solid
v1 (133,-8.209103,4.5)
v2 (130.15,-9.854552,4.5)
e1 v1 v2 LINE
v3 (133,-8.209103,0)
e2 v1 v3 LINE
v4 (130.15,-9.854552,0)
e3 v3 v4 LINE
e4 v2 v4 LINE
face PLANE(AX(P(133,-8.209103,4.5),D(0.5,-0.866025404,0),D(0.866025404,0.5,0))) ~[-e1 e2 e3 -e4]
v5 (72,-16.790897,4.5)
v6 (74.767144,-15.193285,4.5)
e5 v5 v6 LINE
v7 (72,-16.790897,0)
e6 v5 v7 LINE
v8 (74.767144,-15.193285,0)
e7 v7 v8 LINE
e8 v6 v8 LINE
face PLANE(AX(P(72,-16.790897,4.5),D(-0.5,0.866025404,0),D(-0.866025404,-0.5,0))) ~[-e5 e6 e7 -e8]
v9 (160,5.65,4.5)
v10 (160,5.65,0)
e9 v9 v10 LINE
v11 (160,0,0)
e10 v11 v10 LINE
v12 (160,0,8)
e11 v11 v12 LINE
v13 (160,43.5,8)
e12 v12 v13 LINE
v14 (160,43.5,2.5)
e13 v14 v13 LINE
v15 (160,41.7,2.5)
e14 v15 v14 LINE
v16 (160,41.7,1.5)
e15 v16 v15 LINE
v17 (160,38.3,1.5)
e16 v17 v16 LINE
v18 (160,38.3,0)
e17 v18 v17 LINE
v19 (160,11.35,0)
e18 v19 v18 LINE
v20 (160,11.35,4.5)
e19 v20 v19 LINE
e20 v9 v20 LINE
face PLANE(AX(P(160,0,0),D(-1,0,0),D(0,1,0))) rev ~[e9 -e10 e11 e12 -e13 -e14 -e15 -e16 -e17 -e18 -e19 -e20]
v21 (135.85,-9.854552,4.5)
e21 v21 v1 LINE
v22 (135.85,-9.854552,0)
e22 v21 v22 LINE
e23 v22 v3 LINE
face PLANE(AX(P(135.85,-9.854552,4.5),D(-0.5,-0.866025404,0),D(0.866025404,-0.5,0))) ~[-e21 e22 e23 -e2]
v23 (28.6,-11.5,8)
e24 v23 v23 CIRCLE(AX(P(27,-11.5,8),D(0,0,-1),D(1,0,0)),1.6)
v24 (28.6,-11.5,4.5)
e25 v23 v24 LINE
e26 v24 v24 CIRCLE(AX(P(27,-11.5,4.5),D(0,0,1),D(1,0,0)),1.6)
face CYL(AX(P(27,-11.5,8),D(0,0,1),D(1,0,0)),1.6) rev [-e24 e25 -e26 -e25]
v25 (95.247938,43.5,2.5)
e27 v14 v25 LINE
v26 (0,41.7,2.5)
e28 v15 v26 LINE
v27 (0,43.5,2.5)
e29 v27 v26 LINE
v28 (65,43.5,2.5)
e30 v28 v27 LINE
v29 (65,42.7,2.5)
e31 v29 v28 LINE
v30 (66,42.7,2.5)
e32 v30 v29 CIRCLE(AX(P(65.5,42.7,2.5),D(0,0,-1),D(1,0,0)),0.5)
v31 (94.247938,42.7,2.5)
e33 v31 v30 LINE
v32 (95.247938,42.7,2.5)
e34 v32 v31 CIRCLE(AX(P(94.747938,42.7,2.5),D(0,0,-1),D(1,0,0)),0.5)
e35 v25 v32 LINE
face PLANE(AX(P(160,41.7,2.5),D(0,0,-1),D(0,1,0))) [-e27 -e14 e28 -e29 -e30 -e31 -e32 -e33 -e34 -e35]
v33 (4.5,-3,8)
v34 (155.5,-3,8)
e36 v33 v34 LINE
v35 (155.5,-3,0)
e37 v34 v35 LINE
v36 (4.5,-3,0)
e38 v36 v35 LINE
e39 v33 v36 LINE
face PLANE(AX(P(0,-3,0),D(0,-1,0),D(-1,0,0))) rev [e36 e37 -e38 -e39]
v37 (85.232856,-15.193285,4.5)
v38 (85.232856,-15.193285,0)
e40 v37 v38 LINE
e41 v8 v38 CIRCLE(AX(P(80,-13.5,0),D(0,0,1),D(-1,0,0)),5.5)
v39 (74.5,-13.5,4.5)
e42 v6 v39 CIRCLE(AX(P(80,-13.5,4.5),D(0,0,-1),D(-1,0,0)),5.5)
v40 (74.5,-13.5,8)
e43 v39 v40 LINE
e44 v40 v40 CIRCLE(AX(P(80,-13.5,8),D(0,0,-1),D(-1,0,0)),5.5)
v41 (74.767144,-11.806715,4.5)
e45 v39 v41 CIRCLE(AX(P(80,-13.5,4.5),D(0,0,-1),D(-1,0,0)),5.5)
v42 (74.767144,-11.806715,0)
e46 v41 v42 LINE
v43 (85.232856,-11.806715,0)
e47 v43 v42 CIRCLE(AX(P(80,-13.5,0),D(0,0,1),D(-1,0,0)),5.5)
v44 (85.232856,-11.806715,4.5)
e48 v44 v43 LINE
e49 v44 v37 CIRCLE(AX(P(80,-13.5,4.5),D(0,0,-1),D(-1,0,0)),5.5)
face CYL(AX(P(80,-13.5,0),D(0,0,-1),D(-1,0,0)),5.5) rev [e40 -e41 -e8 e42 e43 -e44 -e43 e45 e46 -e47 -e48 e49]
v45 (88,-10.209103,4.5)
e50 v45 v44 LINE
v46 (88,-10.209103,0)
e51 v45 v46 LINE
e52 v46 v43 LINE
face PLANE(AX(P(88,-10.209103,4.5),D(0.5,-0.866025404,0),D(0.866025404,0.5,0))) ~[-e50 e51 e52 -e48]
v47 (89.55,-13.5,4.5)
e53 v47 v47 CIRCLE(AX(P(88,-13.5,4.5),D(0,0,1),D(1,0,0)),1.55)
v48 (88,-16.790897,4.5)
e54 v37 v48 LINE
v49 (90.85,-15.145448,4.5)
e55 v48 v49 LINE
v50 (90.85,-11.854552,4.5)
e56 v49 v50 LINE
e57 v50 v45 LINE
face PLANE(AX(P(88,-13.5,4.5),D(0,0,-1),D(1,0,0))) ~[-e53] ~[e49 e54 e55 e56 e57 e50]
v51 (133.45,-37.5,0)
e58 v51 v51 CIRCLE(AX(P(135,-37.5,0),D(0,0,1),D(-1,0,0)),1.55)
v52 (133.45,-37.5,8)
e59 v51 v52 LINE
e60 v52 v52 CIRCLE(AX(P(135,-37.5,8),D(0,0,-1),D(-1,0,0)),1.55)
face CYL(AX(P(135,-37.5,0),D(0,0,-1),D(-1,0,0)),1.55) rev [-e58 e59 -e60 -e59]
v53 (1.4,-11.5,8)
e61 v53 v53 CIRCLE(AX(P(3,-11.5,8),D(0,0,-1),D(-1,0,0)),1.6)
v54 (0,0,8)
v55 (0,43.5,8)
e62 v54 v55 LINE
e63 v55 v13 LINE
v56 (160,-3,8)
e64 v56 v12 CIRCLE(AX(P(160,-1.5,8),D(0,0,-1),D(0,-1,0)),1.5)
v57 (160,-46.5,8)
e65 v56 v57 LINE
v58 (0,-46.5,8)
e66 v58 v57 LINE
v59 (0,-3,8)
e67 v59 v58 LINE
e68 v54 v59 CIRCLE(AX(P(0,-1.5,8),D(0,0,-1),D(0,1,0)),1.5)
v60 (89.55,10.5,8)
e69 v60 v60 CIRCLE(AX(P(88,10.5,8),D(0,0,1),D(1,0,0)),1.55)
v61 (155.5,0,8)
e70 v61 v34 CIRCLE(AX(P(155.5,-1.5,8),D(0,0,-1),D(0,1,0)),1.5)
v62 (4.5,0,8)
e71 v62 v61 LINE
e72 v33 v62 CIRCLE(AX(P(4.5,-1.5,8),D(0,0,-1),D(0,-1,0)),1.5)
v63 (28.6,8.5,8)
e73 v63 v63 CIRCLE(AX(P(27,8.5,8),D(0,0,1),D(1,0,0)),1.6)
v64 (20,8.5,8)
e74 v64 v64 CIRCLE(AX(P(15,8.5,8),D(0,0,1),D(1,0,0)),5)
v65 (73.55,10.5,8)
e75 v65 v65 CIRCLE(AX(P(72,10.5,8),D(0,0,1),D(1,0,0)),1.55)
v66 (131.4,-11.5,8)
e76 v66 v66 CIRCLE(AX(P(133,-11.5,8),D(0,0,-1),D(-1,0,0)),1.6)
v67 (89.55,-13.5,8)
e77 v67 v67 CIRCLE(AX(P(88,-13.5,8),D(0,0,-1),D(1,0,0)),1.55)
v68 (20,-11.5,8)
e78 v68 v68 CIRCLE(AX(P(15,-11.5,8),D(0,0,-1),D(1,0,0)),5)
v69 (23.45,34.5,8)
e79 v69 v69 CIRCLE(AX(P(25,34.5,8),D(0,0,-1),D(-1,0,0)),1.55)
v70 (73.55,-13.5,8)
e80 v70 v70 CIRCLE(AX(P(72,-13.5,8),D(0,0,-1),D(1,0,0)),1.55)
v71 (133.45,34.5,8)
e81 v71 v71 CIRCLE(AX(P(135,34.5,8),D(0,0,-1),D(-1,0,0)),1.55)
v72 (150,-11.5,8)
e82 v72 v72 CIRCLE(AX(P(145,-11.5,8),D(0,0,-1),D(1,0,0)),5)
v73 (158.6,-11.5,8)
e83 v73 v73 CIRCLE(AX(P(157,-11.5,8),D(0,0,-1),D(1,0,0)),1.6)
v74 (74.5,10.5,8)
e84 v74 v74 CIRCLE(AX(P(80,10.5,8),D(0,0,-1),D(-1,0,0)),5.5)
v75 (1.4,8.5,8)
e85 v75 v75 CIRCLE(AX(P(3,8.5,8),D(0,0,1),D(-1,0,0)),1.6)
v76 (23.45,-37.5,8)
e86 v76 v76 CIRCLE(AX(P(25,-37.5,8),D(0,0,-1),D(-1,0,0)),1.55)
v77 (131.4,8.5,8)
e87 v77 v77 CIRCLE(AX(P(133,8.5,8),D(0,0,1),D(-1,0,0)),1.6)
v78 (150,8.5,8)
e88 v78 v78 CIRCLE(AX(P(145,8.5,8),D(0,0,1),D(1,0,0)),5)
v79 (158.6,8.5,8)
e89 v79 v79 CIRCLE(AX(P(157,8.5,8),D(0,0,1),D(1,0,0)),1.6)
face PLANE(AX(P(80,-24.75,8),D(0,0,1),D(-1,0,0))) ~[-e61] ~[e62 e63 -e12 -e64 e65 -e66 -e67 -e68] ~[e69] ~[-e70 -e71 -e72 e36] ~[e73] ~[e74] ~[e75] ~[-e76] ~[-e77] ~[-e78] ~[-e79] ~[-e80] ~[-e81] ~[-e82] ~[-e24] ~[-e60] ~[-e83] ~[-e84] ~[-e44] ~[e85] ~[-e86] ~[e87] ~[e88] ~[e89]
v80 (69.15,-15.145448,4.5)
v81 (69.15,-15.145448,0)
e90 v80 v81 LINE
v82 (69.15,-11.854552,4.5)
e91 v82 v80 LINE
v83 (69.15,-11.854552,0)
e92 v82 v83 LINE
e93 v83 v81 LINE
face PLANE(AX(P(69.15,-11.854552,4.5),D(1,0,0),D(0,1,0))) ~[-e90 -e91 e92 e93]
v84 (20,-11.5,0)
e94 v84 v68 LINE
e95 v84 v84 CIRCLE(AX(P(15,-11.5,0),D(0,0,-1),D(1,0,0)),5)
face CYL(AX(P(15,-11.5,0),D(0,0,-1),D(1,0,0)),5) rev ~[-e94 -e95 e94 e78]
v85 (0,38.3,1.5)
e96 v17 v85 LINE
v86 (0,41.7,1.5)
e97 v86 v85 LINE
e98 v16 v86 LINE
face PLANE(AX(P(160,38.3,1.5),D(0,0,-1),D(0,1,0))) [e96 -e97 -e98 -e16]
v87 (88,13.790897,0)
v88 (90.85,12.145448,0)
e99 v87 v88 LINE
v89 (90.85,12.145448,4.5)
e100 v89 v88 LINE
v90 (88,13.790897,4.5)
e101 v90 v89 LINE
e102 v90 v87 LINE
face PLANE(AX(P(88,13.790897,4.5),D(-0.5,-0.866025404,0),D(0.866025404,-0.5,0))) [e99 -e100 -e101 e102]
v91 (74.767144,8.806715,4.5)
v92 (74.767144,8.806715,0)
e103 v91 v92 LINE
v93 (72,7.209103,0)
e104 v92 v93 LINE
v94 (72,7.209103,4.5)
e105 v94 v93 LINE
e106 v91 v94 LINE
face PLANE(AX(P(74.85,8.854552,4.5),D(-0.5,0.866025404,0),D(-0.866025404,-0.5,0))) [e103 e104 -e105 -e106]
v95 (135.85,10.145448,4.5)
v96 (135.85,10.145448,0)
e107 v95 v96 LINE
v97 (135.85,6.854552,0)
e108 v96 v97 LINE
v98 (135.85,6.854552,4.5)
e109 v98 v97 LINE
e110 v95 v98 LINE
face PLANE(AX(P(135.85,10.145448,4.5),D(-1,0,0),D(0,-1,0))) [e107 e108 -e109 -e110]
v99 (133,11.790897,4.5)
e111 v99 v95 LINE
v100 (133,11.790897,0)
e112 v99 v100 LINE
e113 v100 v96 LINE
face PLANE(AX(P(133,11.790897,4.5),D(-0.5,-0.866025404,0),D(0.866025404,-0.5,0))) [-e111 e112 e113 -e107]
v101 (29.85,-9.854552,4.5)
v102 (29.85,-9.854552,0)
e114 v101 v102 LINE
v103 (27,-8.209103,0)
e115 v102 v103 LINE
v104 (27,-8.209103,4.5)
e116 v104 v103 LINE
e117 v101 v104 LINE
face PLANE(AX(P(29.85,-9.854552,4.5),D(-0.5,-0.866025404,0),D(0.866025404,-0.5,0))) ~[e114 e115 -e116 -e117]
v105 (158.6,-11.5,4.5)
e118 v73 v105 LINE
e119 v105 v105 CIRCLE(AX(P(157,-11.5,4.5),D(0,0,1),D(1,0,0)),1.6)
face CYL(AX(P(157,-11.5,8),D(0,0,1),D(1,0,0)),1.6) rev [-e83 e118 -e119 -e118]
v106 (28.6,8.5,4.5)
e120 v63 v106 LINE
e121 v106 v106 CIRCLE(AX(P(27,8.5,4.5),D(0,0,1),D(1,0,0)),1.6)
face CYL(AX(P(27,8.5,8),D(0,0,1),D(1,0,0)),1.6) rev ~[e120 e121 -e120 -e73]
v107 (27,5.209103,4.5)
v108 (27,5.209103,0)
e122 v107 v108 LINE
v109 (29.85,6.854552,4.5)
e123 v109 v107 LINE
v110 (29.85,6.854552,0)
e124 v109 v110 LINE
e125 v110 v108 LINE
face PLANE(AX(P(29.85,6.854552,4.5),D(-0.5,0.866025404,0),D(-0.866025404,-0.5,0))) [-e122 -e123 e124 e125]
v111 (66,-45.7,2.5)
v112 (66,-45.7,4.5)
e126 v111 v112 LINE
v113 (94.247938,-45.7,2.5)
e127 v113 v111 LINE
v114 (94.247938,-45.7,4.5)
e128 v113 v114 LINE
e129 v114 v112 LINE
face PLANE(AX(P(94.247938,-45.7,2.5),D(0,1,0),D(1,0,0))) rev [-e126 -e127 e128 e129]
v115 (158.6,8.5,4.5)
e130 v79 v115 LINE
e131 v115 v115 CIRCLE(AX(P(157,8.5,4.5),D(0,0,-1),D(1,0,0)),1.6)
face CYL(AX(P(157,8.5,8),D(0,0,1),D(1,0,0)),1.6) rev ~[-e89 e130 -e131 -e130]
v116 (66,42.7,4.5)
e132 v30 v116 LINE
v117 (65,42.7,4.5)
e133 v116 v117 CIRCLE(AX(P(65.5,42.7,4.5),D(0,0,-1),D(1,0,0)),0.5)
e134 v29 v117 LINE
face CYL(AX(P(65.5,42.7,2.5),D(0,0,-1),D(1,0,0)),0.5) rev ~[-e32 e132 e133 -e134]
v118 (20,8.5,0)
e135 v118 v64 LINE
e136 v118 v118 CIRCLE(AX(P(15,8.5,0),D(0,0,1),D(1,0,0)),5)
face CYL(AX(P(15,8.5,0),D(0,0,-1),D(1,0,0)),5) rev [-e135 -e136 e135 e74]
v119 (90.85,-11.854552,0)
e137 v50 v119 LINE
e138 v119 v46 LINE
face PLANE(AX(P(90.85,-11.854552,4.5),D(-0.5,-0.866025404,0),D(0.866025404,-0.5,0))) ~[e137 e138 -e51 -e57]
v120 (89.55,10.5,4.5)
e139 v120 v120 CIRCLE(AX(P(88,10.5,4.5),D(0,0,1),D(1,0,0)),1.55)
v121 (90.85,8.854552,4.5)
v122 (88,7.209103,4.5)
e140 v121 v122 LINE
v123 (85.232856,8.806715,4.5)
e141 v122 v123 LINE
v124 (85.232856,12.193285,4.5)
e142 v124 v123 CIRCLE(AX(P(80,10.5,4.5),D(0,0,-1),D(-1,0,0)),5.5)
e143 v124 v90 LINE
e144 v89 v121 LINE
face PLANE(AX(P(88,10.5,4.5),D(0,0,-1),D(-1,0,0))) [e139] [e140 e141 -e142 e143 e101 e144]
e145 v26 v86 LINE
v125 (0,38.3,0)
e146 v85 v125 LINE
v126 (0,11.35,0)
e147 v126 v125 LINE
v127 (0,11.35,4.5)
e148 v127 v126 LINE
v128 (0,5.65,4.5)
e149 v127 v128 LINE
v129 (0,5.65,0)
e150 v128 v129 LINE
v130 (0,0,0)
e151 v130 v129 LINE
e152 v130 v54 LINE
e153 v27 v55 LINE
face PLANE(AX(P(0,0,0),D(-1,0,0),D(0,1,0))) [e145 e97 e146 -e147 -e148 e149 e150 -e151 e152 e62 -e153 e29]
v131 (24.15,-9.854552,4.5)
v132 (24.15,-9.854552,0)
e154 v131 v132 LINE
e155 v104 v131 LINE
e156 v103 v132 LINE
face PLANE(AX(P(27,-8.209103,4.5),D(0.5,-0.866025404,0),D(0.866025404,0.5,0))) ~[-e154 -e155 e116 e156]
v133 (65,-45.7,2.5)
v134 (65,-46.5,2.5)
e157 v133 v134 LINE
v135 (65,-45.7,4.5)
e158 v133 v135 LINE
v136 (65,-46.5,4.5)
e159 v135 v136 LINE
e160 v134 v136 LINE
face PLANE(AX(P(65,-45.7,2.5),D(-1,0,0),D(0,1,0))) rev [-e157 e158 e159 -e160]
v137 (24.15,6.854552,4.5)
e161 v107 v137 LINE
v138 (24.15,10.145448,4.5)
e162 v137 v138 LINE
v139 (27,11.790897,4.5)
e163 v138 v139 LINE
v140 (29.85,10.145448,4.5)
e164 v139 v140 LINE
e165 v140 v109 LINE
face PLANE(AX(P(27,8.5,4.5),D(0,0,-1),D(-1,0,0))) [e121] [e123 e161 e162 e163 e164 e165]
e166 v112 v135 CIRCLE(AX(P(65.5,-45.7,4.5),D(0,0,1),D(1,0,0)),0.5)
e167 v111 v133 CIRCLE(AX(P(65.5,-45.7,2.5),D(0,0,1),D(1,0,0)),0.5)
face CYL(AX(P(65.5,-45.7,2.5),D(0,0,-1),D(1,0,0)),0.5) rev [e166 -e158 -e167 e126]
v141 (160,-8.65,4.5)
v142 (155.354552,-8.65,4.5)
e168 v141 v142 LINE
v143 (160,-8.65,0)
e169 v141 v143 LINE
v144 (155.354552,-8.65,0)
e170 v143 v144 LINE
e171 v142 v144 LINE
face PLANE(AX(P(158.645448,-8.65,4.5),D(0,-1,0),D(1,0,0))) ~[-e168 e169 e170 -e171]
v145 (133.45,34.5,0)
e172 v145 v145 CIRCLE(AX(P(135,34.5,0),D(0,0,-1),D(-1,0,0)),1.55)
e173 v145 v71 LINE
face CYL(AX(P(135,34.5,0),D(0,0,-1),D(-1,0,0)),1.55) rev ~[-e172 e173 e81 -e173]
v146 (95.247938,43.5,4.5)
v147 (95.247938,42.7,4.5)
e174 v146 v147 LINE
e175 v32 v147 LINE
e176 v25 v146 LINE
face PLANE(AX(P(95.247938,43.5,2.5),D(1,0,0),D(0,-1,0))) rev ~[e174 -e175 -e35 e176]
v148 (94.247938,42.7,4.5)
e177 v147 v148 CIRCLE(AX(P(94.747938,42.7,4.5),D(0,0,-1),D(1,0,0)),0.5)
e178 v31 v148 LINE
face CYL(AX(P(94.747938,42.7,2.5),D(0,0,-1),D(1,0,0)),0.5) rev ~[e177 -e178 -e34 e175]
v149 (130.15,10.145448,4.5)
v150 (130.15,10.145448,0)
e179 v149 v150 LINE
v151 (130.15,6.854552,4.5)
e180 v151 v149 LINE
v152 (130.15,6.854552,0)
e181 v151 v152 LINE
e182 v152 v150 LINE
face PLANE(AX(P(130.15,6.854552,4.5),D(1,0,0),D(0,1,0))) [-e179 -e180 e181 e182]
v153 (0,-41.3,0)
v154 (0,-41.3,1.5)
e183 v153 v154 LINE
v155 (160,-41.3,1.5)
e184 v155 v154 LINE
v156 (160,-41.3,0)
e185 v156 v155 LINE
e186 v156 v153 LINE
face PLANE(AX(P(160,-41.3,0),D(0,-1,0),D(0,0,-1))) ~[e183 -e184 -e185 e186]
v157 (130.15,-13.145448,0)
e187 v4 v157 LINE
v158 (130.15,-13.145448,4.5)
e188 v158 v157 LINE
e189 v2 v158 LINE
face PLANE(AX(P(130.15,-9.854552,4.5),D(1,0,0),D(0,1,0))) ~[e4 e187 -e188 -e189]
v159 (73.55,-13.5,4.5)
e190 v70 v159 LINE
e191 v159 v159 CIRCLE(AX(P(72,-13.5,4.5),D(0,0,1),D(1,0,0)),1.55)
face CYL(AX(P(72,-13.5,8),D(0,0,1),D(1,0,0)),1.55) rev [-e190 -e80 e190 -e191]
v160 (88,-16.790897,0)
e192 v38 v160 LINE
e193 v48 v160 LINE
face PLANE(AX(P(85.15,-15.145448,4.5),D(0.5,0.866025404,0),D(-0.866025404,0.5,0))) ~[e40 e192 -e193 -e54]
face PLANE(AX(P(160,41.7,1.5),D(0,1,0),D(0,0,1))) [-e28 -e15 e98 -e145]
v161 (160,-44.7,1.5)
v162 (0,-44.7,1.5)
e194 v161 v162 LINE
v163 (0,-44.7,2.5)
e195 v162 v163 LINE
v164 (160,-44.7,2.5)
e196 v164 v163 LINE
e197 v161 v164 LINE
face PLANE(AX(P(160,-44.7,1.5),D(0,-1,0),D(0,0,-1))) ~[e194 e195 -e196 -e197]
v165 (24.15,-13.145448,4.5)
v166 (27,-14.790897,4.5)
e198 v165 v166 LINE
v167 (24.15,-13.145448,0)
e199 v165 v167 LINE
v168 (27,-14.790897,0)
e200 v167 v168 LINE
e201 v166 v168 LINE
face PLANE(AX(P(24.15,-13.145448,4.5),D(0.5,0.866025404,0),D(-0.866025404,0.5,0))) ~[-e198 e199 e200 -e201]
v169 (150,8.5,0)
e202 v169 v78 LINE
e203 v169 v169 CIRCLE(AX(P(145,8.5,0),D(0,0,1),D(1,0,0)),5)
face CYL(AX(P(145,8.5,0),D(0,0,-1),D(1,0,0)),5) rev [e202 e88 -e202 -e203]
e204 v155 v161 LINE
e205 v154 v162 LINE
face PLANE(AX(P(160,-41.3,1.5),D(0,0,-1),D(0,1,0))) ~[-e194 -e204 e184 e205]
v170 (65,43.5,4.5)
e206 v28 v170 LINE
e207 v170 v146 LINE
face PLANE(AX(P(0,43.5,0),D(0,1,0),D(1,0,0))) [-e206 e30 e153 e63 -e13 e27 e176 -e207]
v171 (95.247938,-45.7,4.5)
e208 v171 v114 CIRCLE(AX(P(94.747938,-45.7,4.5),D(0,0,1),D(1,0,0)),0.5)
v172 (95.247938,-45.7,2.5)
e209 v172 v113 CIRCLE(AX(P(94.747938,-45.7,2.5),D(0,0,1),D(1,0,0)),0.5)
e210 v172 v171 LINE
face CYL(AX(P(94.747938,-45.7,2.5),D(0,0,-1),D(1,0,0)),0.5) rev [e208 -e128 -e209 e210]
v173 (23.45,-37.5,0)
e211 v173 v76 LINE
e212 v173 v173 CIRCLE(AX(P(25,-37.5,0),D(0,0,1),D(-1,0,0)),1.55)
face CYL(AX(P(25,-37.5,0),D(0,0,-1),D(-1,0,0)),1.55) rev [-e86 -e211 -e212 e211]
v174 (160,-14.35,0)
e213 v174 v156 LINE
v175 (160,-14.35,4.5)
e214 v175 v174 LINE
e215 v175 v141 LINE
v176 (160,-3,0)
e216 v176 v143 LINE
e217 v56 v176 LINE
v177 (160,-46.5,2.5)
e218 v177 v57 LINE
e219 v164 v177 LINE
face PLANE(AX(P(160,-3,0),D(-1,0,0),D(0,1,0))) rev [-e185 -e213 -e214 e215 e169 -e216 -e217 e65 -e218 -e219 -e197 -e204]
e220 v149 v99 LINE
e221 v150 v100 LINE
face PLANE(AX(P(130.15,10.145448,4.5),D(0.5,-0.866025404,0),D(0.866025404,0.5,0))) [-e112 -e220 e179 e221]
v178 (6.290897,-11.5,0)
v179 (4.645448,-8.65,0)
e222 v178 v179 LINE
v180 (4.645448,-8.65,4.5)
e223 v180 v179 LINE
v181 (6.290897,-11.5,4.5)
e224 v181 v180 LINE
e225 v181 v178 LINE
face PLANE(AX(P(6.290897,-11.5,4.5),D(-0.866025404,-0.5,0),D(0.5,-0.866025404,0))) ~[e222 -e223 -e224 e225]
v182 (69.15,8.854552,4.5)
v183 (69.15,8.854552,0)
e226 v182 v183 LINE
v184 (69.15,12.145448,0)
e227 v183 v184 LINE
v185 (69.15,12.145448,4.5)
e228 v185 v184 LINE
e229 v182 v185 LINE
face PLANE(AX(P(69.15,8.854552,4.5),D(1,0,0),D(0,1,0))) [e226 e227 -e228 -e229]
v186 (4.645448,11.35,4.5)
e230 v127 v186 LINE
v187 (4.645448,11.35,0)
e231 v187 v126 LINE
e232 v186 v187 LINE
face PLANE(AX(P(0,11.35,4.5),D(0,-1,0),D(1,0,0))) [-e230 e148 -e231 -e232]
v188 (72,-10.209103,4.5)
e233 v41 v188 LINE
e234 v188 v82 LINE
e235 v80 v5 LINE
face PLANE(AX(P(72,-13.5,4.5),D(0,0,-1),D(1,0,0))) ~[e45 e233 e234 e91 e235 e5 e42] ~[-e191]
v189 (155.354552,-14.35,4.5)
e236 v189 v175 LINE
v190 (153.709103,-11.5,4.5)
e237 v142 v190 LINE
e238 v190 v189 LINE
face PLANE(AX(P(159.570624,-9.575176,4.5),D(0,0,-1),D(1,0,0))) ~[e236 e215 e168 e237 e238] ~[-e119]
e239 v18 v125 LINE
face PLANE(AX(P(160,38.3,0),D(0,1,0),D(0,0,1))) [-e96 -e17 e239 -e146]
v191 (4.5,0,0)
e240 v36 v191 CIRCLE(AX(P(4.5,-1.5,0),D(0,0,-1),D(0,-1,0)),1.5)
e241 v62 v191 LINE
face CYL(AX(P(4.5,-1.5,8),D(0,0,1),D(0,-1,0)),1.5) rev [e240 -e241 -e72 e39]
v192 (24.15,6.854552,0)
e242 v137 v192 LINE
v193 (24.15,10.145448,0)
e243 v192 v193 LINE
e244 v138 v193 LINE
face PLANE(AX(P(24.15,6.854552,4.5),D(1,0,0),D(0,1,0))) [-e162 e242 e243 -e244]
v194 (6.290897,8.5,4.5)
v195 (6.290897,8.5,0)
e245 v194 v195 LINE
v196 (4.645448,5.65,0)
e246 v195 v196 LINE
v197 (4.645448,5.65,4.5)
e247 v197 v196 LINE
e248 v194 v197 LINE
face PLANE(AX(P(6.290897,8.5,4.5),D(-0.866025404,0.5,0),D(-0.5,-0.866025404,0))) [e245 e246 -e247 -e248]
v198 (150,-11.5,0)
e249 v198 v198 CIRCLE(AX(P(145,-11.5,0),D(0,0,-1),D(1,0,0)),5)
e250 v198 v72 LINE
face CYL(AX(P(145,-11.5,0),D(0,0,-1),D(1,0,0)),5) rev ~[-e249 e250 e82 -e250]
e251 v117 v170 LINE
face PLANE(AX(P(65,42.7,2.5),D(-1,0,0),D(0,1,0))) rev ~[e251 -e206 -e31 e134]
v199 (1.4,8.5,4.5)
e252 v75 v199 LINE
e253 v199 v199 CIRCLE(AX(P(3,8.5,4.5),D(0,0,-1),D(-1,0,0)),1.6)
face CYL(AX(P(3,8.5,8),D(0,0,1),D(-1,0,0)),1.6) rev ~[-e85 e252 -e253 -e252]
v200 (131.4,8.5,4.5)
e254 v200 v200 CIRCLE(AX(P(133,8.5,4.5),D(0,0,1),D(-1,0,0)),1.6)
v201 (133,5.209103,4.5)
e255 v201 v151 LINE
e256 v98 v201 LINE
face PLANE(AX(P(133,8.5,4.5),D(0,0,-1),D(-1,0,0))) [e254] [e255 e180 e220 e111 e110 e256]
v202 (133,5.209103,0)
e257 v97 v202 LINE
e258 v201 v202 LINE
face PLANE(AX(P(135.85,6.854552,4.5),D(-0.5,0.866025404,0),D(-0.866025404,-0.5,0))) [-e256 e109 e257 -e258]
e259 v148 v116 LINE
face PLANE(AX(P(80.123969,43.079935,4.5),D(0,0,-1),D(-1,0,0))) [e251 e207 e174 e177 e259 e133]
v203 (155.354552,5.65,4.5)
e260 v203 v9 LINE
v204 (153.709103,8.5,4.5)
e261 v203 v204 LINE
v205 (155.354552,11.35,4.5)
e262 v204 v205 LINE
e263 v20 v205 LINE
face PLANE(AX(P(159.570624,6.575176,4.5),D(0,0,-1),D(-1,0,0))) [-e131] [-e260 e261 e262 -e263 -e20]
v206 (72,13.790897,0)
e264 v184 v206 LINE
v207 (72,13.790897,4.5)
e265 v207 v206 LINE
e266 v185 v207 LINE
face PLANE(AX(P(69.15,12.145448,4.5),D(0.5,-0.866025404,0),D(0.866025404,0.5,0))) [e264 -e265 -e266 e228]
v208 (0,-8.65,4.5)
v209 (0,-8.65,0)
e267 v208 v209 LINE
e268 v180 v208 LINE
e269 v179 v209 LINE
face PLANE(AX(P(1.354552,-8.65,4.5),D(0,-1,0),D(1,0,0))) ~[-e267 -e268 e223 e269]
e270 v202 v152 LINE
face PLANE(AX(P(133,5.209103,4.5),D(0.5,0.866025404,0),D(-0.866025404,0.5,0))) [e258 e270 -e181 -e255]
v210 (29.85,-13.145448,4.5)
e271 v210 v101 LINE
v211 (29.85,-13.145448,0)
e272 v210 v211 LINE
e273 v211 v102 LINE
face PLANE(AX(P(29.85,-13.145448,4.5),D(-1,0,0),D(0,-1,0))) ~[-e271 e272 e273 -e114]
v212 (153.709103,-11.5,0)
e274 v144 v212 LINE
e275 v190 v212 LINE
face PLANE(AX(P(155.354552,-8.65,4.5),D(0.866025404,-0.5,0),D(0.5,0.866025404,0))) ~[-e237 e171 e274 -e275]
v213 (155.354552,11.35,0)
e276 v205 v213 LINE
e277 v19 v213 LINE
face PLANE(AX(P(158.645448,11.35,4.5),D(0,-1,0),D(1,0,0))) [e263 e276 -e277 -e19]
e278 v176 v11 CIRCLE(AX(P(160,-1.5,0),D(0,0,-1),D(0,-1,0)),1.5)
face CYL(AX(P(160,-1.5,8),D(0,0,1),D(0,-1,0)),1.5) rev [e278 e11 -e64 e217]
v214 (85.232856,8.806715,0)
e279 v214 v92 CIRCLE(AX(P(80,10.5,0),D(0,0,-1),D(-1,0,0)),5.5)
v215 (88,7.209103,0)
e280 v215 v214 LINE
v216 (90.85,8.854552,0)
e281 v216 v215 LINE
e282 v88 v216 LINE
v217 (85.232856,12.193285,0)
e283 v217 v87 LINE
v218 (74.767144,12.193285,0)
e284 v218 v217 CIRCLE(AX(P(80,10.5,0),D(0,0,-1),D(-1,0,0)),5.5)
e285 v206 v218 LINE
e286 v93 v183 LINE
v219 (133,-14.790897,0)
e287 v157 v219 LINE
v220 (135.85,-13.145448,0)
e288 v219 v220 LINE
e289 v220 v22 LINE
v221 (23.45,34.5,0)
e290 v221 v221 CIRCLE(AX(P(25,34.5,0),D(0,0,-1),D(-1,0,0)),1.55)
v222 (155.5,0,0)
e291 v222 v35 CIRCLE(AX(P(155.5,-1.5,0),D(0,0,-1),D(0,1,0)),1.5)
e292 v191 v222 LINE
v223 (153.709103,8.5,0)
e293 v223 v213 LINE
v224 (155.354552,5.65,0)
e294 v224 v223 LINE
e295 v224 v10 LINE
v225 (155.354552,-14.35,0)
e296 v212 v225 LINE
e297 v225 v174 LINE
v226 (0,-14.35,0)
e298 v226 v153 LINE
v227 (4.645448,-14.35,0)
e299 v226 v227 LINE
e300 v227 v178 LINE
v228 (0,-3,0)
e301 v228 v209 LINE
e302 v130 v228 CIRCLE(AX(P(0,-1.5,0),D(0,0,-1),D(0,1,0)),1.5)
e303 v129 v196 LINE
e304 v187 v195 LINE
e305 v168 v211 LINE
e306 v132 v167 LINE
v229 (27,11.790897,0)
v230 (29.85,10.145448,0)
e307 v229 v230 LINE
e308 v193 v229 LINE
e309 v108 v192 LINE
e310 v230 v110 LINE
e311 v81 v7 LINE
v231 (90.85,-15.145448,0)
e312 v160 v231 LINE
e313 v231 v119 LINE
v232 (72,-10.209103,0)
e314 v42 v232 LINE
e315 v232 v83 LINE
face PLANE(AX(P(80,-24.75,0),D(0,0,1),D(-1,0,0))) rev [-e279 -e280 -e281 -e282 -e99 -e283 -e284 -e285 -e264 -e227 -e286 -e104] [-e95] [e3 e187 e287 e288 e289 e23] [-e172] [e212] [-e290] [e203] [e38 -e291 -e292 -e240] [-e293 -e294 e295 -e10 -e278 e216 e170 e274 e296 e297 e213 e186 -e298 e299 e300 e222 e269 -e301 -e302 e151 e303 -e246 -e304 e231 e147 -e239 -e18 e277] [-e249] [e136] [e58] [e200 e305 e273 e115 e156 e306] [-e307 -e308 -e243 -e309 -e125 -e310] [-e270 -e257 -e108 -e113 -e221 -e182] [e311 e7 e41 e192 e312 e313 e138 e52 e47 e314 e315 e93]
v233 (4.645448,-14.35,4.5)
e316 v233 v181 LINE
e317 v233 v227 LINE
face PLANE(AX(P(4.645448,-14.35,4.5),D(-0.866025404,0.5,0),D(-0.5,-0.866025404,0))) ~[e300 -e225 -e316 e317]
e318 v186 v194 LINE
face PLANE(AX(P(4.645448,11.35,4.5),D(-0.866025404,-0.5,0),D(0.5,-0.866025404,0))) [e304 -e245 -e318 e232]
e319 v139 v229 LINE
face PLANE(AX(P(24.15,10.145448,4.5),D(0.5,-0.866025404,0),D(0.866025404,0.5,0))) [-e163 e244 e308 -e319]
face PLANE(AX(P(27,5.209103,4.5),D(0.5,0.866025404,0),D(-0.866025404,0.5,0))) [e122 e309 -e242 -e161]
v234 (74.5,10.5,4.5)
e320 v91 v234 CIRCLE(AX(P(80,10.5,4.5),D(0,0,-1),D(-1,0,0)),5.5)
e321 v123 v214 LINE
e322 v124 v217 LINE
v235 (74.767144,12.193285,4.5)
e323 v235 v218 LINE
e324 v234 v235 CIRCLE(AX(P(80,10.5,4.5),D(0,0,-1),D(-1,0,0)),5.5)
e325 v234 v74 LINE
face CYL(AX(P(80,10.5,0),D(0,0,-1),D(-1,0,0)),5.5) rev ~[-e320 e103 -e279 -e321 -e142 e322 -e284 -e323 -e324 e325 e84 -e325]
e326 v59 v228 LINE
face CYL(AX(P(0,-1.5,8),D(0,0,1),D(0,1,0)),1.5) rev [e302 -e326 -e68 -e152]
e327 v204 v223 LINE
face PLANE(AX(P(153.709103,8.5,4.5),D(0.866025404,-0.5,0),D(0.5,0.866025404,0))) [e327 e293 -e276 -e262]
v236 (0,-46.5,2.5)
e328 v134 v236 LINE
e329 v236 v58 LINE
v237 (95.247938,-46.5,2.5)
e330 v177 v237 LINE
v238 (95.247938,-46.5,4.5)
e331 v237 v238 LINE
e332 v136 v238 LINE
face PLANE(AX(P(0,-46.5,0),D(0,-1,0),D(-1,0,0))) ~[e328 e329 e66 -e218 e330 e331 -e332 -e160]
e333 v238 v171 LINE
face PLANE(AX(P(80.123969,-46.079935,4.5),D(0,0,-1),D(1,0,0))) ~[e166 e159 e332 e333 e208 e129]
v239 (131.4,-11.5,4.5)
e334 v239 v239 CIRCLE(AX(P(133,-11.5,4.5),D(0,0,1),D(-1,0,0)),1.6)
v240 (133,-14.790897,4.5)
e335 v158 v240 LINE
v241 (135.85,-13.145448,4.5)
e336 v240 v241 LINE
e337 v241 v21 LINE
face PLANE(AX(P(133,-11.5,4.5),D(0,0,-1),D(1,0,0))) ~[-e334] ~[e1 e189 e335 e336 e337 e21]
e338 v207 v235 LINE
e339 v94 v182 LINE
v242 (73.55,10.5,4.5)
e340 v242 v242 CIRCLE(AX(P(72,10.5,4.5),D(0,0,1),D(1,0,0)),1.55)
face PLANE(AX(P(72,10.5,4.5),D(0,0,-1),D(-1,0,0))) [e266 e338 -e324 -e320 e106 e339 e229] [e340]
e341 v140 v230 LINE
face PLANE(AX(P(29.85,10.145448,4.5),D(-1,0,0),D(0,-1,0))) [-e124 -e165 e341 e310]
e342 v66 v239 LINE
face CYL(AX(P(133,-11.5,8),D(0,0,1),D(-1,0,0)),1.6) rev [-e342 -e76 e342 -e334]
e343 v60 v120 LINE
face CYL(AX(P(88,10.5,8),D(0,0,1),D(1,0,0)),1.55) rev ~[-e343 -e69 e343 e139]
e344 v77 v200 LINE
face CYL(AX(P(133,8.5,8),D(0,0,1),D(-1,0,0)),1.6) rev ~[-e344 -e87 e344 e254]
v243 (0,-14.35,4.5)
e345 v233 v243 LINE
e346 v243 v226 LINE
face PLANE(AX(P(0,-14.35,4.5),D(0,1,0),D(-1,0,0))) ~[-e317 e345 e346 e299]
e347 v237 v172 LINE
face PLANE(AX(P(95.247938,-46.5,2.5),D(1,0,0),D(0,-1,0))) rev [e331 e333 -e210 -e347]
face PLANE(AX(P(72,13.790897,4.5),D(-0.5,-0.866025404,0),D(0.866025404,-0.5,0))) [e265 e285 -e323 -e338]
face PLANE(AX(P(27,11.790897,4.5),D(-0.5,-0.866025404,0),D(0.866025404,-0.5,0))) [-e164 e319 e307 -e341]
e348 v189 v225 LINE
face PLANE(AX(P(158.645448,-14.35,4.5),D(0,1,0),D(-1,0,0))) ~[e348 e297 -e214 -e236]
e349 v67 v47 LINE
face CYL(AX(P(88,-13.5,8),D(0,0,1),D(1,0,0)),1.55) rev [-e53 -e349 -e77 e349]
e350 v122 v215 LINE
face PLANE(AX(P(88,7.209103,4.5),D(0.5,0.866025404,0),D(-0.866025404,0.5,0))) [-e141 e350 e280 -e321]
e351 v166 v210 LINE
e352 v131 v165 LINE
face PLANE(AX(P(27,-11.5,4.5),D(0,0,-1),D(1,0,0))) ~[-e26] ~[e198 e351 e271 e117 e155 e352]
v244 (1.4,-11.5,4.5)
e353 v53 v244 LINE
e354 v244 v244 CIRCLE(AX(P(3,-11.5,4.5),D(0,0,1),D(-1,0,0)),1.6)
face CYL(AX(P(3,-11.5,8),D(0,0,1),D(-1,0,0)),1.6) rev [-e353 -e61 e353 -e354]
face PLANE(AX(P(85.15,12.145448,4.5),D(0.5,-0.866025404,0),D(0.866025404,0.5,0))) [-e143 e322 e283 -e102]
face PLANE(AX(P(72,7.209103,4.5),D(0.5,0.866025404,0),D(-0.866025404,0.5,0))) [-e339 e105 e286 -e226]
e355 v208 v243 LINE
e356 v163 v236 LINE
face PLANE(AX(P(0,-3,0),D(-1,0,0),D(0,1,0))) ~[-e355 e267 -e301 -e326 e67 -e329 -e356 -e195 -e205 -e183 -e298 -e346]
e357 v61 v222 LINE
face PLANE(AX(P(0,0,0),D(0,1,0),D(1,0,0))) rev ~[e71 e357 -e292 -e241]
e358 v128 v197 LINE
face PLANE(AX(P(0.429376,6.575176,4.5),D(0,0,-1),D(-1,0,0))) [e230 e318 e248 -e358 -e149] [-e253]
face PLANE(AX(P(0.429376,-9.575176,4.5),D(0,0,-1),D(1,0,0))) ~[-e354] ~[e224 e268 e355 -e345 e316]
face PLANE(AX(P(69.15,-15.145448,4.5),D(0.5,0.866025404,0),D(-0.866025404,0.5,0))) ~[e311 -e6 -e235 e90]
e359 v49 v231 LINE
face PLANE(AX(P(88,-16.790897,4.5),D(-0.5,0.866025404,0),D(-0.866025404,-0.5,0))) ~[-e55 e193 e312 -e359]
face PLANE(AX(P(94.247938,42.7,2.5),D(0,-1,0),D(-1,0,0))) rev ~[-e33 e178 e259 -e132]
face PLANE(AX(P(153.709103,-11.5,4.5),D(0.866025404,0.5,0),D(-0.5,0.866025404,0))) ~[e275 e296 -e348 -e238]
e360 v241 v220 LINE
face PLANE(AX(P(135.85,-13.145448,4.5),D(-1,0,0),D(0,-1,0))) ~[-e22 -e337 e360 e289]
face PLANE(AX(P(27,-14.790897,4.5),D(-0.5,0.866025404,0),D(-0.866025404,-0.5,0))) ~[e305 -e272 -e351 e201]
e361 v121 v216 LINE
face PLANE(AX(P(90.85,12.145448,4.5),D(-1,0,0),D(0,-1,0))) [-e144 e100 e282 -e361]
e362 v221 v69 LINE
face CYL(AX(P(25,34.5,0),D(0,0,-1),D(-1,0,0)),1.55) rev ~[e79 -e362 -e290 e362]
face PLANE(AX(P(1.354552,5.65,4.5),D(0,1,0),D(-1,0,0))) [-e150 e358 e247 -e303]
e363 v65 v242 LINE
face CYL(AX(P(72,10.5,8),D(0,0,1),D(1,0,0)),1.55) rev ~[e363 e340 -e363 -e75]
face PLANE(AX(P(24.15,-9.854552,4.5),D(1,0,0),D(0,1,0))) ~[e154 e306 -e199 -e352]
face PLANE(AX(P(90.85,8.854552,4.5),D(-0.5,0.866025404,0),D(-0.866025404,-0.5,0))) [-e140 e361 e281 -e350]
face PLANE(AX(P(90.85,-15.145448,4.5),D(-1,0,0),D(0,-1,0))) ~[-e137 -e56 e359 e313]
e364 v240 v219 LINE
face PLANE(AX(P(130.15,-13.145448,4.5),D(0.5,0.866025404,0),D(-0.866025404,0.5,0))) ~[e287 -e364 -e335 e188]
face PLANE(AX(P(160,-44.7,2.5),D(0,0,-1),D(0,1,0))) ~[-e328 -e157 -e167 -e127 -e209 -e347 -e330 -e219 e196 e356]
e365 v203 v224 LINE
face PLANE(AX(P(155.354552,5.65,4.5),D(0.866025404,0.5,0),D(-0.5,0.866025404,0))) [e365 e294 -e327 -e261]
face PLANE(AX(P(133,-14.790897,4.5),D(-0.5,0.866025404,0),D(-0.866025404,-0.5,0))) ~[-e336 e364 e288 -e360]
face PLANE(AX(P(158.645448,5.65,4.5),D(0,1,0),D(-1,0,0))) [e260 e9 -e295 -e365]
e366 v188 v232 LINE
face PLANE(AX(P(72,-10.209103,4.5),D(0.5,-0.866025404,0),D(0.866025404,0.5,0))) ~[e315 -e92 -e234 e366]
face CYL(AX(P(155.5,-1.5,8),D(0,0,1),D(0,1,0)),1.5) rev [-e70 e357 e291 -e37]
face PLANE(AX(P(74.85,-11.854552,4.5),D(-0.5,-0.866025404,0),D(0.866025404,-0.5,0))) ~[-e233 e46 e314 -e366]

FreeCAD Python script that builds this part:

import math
import FreeCAD as App
import Part
import Sketcher
from FreeCAD import Vector
Q = App.Units.Quantity


def add_polygon(sketch, points):
    """Adds a closed chain of lines whose ends are joined by coincident constraints."""
    first, n = sketch.GeometryCount, len(points)
    for a, b in zip(points, points[1:] + points[:1]):
        sketch.addGeometry(Part.LineSegment(App.Vector(*a, 0), App.Vector(*b, 0)), False)
    for i in range(n):
        sketch.addConstraint(Sketcher.Constraint("Coincident", first + i, 2, first + (i + 1) % n, 1))

doc = App.newDocument("Part")
params = doc.addObject("Spreadsheet::Sheet", "Params")
for row, (alias, value) in enumerate([
    ("sketch1_diameter", "10 mm"),
    ("sketch1_diameter2", "8.1 mm"),
    ("sketch1_width", "160 mm"),
    ("sketch1_height", "43.5 mm"),
    ("pad1_length", "8 mm"),
    ("sketch2_height", "1 mm"),
    ("sketch2_width", "3.4 mm"),
    ("sketch2_width2", "5.2 mm"),
    ("sketch2_height2", "1.5 mm"),
    ("sketch3_diameter", "3.1 mm"),
    ("sketch4_diameter", "11 mm"),
    ("sketch5_diameter", "3.2 mm"),
    ("sketch6_diameter", "3.2 mm"),
    ("sketch6_height", "5.7 mm"),
    ("pocket5_length", "4.5 mm"),
    ("sketch7_diameter", "3.1 mm"),
    ("sketch8_radius", "0.5 mm"),
    ("sketch8_height", "0.8 mm"),
    ("pocket7_length", "2 mm"),
    ("sketch9_radius", "1.5 mm"),
    ("sketch9_width", "4.5 mm"),
    ("pad2_length", "8 mm"),
], start=1):
    params.set(f"A{row}", alias)
    params.set(f"B{row}", "=" + value)
    params.setAlias(f"B{row}", alias)

body = doc.addObject("PartDesign::Body", "Body")

sketch1 = body.newObject("Sketcher::SketchObject", "Sketch")
sketch1.AttachmentSupport = (doc.getObject("XY_Plane"), [""])
sketch1.MapMode = "FlatFace"
add_polygon(sketch1, [(0, 43.5), (0, 0), (160, 0), (160, 43.5)])
sketch1.addGeometry(Part.Circle(Vector(15, 8.5, 0), Vector(0, 0, 1), 5), False)
sketch1.addGeometry(Part.Circle(Vector(145, 8.5, 0), Vector(0, 0, 1), 5), False)
sketch1.addGeometry(Part.Circle(Vector(80, 10.5, 0), Vector(0, 0, 1), 4), False)
sketch1.addConstraint([
    Sketcher.Constraint("Vertical", 0),
    Sketcher.Constraint("Horizontal", 1),
    Sketcher.Constraint("Vertical", 2),
    Sketcher.Constraint("Horizontal", 3),
    Sketcher.Constraint("Coincident", 0, 2, -1, 1),
    Sketcher.Constraint("Equal", 4, 5),
    Sketcher.Constraint("Horizontal", 4, 3, 5, 3),
    Sketcher.Constraint("Diameter", 4, Q("10 mm")),
    Sketcher.Constraint("Diameter", 6, Q("8.1 mm")),
    Sketcher.Constraint("DistanceX", 1, 1, 1, 2, Q("160 mm")),
    Sketcher.Constraint("DistanceY", 0, 2, 0, 1, Q("43.5 mm")),
    Sketcher.Constraint("DistanceX", -1, 1, 4, 3, Q("15 mm")),
    Sketcher.Constraint("DistanceX", -1, 1, 5, 3, Q("145 mm")),
    Sketcher.Constraint("DistanceX", -1, 1, 6, 3, Q("80 mm")),
    Sketcher.Constraint("DistanceY", 4, 3, 6, 3, Q("2 mm")),
    Sketcher.Constraint("DistanceY", 5, 3, 2, 2, Q("35 mm")),
])
sketch1.setExpression("Constraints[11]", "Params.sketch1_diameter")
sketch1.setExpression("Constraints[12]", "Params.sketch1_diameter2")
sketch1.setExpression("Constraints[13]", "Params.sketch1_width")
sketch1.setExpression("Constraints[14]", "Params.sketch1_height")
pad1 = body.newObject("PartDesign::Pad", "Pad")
pad1.Profile = sketch1
pad1.setExpression("Length", "Params.pad1_length")

sketch2 = body.newObject("Sketcher::SketchObject", "Sketch001")
sketch2.AttachmentSupport = (doc.getObject("YZ_Plane"), [""])
sketch2.MapMode = "FlatFace"
sketch2.AttachmentOffset = App.Placement(Vector(0, 0, 160), App.Rotation())
add_polygon(sketch2, [(41.7, 2.5), (41.7, 1.5), (38.3, 1.5), (38.3, 0), (43.5, 0), (43.5, 2.5)])
sketch2.addConstraint([
    Sketcher.Constraint("Vertical", 0),
    Sketcher.Constraint("Horizontal", 1),
    Sketcher.Constraint("Vertical", 2),
    Sketcher.Constraint("Horizontal", 3),
    Sketcher.Constraint("Vertical", 4),
    Sketcher.Constraint("Horizontal", 5),
    Sketcher.Constraint("PointOnObject", 2, 2, -1),
    Sketcher.Constraint("DistanceY", 0, 2, 0, 1, Q("1 mm")),
    Sketcher.Constraint("DistanceX", 1, 2, 1, 1, Q("3.4 mm")),
    Sketcher.Constraint("DistanceX", 3, 1, 3, 2, Q("5.2 mm")),
    Sketcher.Constraint("DistanceY", 2, 2, 2, 1, Q("1.5 mm")),
    Sketcher.Constraint("DistanceX", -1, 1, 0, 2, Q("41.7 mm")),
])
sketch2.setExpression("Constraints[13]", "Params.sketch2_height")
sketch2.setExpression("Constraints[14]", "Params.sketch2_width")
sketch2.setExpression("Constraints[15]", "Params.sketch2_width2")
sketch2.setExpression("Constraints[16]", "Params.sketch2_height2")
pocket1 = body.newObject("PartDesign::Pocket", "Pocket")
pocket1.Profile = sketch2
pocket1.Type = "ThroughAll"

sketch3 = body.newObject("Sketcher::SketchObject", "Sketch002")
sketch3.AttachmentSupport = (doc.getObject("XY_Plane"), [""])
sketch3.MapMode = "FlatFace"
sketch3.AttachmentOffset = App.Placement(Vector(0, 0, 8), App.Rotation())
sketch3.addGeometry([
    Part.Circle(Vector(88, 10.5, 0), Vector(0, 0, 1), 1.6),
    Part.Circle(Vector(72, 10.5, 0), Vector(0, 0, 1), 1.6),
], False)
sketch3.addConstraint([
    Sketcher.Constraint("Equal", 0, 1),
    Sketcher.Constraint("Horizontal", 0, 3, 1, 3),
    Sketcher.Constraint("Diameter", 0, Q("3.1 mm")),
    Sketcher.Constraint("DistanceX", -1, 1, 0, 3, Q("88 mm")),
    Sketcher.Constraint("DistanceX", -1, 1, 1, 3, Q("72 mm")),
    Sketcher.Constraint("DistanceY", -1, 1, 0, 3, Q("10.5 mm")),
])
sketch3.setExpression("Constraints[2]", "Params.sketch3_diameter")
pocket2 = body.newObject("PartDesign::Pocket", "Pocket001")
pocket2.Profile = sketch3
pocket2.Type = "ThroughAll"

sketch4 = body.newObject("Sketcher::SketchObject", "Sketch003")
sketch4.AttachmentSupport = (doc.getObject("XY_Plane"), [""])
sketch4.MapMode = "FlatFace"
sketch4.addGeometry(Part.Circle(Vector(80, 10, 0), Vector(0, 0, 1), 6), False)
sketch4.addConstraint([
    Sketcher.Constraint("Diameter", 0, Q("11 mm")),
    Sketcher.Constraint("DistanceX", -1, 1, 0, 3, Q("80 mm")),
    Sketcher.Constraint("DistanceY", -1, 1, 0, 3, Q("10.5 mm")),
])
sketch4.setExpression("Constraints[0]", "Params.sketch4_diameter")
pocket3 = body.newObject("PartDesign::Pocket", "Pocket002")
pocket3.Profile = sketch4
pocket3.Type = "ThroughAll"
pocket3.Reversed = True

sketch5 = body.newObject("Sketcher::SketchObject", "Sketch004")
sketch5.AttachmentSupport = (doc.getObject("XY_Plane"), [""])
sketch5.MapMode = "FlatFace"
sketch5.AttachmentOffset = App.Placement(Vector(0, 0, 8), App.Rotation())
sketch5.addGeometry([
    Part.Circle(Vector(27, 8.5, 0), Vector(0, 0, 1), 1.6),
    Part.Circle(Vector(133, 8.5, 0), Vector(0, 0, 1), 1.6),
    Part.Circle(Vector(3, 8.5, 0), Vector(0, 0, 1), 1.6),
    Part.Circle(Vector(157, 8.5, 0), Vector(0, 0, 1), 1.6),
], False)
sketch5.addConstraint([
    Sketcher.Constraint("Equal", 0, 1),
    Sketcher.Constraint("Equal", 1, 2),
    Sketcher.Constraint("Equal", 2, 3),
    Sketcher.Constraint("Horizontal", 0, 3, 1, 3),
    Sketcher.Constraint("Horizontal", 1, 3, 2, 3),
    Sketcher.Constraint("Horizontal", 2, 3, 3, 3),
    Sketcher.Constraint("Diameter", 0, Q("3.2 mm")),
    Sketcher.Constraint("DistanceX", -1, 1, 0, 3, Q("27 mm")),
    Sketcher.Constraint("DistanceX", -1, 1, 1, 3, Q("133 mm")),
    Sketcher.Constraint("DistanceX", -1, 1, 2, 3, Q("3 mm")),
    Sketcher.Constraint("DistanceX", -1, 1, 3, 3, Q("157 mm")),
    Sketcher.Constraint("DistanceY", -1, 1, 0, 3, Q("8.5 mm")),
])
sketch5.setExpression("Constraints[6]", "Params.sketch5_diameter")
pocket4 = body.newObject("PartDesign::Pocket", "Pocket003")
pocket4.Profile = sketch5
pocket4.Type = "ThroughAll"

sketch6 = body.newObject("Sketcher::SketchObject", "Sketch005")
sketch6.AttachmentSupport = (doc.getObject("XY_Plane"), [""])
sketch6.MapMode = "FlatFace"
sketch6.AttachmentOffset = App.Placement(Vector(0, 0, 4.5), App.Rotation())
add_polygon(sketch6, [(155.4, 5.7), (153.7, 8.5), (155.4, 11.3), (160, 11.3), (160, 5.7)])
sketch6.addGeometry(Part.Circle(Vector(157, 8.5, 0), Vector(0, 0, 1), 1.6), False)
add_polygon(sketch6, [(0, 11.3), (4.6, 11.3), (6.3, 8.5), (4.6, 5.7), (0, 5.7)])
sketch6.addGeometry(Part.Circle(Vector(3, 8.5, 0), Vector(0, 0, 1), 1.6), False)
add_polygon(sketch6, [(90.8, 12.1), (90.8, 8.9), (88, 7.2), (85.2, 8.9), (85.2, 12.1), (88, 13.8)])
add_polygon(sketch6, [(72, 7.2), (69.2, 8.9), (69.2, 12.1), (72, 13.8), (74.8, 12.1), (74.8, 8.9)])
add_polygon(sketch6, [(130.2, 6.9), (130.2, 10.1), (133, 11.8), (135.8, 10.1), (135.8, 6.9), (133, 5.2)])
add_polygon(sketch6, [(27, 5.2), (24.1, 6.9), (24.1, 10.1), (27, 11.8), (29.9, 10.1), (29.9, 6.9)])
sketch6.addConstraint([
    Sketcher.Constraint("Horizontal", 2),
    Sketcher.Constraint("Vertical", 3),
    Sketcher.Constraint("Horizontal", 4),
    Sketcher.Constraint("Horizontal", 6),
    Sketcher.Constraint("Horizontal", 9),
    Sketcher.Constraint("Vertical", 10),
    Sketcher.Constraint("Vertical", 12),
    Sketcher.Constraint("Vertical", 15),
    Sketcher.Constraint("Vertical", 19),
    Sketcher.Constraint("Vertical", 22),
    Sketcher.Constraint("Vertical", 24),
    Sketcher.Constraint("Vertical", 27),
    Sketcher.Constraint("Vertical", 31),
    Sketcher.Constraint("Vertical", 34),
    Sketcher.Constraint("Equal", 5, 11),
    Sketcher.Constraint("PointOnObject", 9, 2, -2),
    Sketcher.Constraint("Parallel", 0, 7),
    Sketcher.Constraint("Parallel", 1, 8),
    Sketcher.Constraint("Perpendicular", 7, 13),
    Sketcher.Constraint("Perpendicular", 8, 14),
    Sketcher.Constraint("Parallel", 13, 16),
    Sketcher.Constraint("Parallel", 14, 17),
    Sketcher.Constraint("Parallel", 17, 18),
    Sketcher.Constraint("Parallel", 16, 20),
    Sketcher.Constraint("Parallel", 18, 21),
    Sketcher.Constraint("Parallel", 20, 23),
    Sketcher.Constraint("Parallel", 23, 25),
    Sketcher.Constraint("Parallel", 21, 26),
    Sketcher.Constraint("Parallel", 25, 28),
    Sketcher.Constraint("Parallel", 26, 29),
    Sketcher.Constraint("Parallel", 29, 30),
    Sketcher.Constraint("Parallel", 28, 32),
    Sketcher.Constraint("Parallel", 30, 33),
    Sketcher.Constraint("Parallel", 32, 35),
    Sketcher.Constraint("Horizontal", 5, 3, 11, 3),
    Sketcher.Constraint("Horizontal", 11, 3, 0, 2),
    Sketcher.Constraint("Horizontal", 2, 2, 6, 2),
    Sketcher.Constraint("Horizontal", 0, 2, 7, 2),
    Sketcher.Constraint("Horizontal", 4, 2, 8, 2),
    Sketcher.Constraint("Horizontal", 12, 2, 14, 2),
    Sketcher.Constraint("Horizontal", 15, 2, 17, 2),
    Sketcher.Constraint("Horizontal", 14, 2, 18, 2),
    Sketcher.Constraint("Horizontal", 17, 2, 19, 2),
    Sketcher.Constraint("Horizontal", 16, 2, 20, 2),
    Sketcher.Constraint("Horizontal", 19, 2, 21, 2),
    Sketcher.Constraint("Horizontal", 18, 2, 22, 2),
    Sketcher.Constraint("Horizontal", 24, 2, 26, 2),
    Sketcher.Constraint("Horizontal", 27, 2, 29, 2),
    Sketcher.Constraint("Horizontal", 29, 2, 30, 2),
    Sketcher.Constraint("Horizontal", 26, 2, 31, 2),
    Sketcher.Constraint("Horizontal", 25, 2, 32, 2),
    Sketcher.Constraint("Horizontal", 31, 2, 33, 2),
    Sketcher.Constraint("Horizontal", 30, 2, 34, 2),
    Sketcher.Constraint("Vertical", 1, 2, 4, 2),
    Sketcher.Constraint("Vertical", 6, 2, 8, 2),
    Sketcher.Constraint("Equal", 4, 6),
    Sketcher.Constraint("Equal", 22, 24),
    Sketcher.Constraint("Equal", 8, 13),
    Sketcher.Constraint("Equal", 23, 25),
    Sketcher.Constraint("Diameter", 5, Q("3.2 mm")),
    Sketcher.Constraint("Angle", 0, Q("120 deg")),
    Sketcher.Constraint("DistanceY", 3, 2, 3, 1, Q("5.7 mm")),
    Sketcher.Constraint("DistanceX", -1, 1, 5, 3, Q("157 mm")),
    Sketcher.Constraint("DistanceX", -1, 1, 11, 3, Q("3 mm")),
    Sketcher.Constraint("DistanceX", -1, 1, 2, 2, Q("160 mm")),
    Sketcher.Constraint("DistanceX", -1, 1, 13, 2, Q("88 mm")),
    Sketcher.Constraint("DistanceX", -1, 1, 20, 2, Q("72 mm")),
    Sketcher.Constraint("DistanceX", -1, 1, 25, 2, Q("133 mm")),
    Sketcher.Constraint("DistanceX", -1, 1, 32, 2, Q("27 mm")),
    Sketcher.Constraint("DistanceY", -1, 1, 5, 3, Q("8.5 mm")),
    Sketcher.Constraint("DistanceX", 2, 1, 2, 2, Q("4.645448 mm")),
    Sketcher.Constraint("DistanceY", 12, 2, 12, 1, Q("3.290897 mm")),
    Sketcher.Constraint("DistanceY", -1, 1, 12, 2, Q("8.854552 mm")),
    Sketcher.Constraint("DistanceY", -1, 1, 24, 2, Q("10.145448 mm")),
])
sketch6.setExpression("Constraints[93]", "Params.sketch6_diameter")
sketch6.setExpression("Constraints[95]", "Params.sketch6_height")
pocket5 = body.newObject("PartDesign::Pocket", "Pocket004")
pocket5.Profile = sketch6
pocket5.setExpression("Length", "Params.pocket5_length")

sketch7 = body.newObject("Sketcher::SketchObject", "Sketch006")
sketch7.AttachmentSupport = (doc.getObject("XY_Plane"), [""])
sketch7.MapMode = "FlatFace"
sketch7.addGeometry([
    Part.Circle(Vector(135, 34.5, 0), Vector(0, 0, 1), 1.6),
    Part.Circle(Vector(25, 34.5, 0), Vector(0, 0, 1), 1.6),
], False)
sketch7.addConstraint([
    Sketcher.Constraint("Equal", 0, 1),
    Sketcher.Constraint("Horizontal", 0, 3, 1, 3),
    Sketcher.Constraint("Diameter", 0, Q("3.1 mm")),
    Sketcher.Constraint("DistanceX", -1, 1, 0, 3, Q("135 mm")),
    Sketcher.Constraint("DistanceX", -1, 1, 1, 3, Q("25 mm")),
    Sketcher.Constraint("DistanceY", -1, 1, 0, 3, Q("34.5 mm")),
])
sketch7.setExpression("Constraints[2]", "Params.sketch7_diameter")
pocket6 = body.newObject("PartDesign::Pocket", "Pocket005")
pocket6.Profile = sketch7
pocket6.Type = "ThroughAll"
pocket6.Reversed = True

sketch8 = body.newObject("Sketcher::SketchObject", "Sketch007")
sketch8.AttachmentSupport = (doc.getObject("XY_Plane"), [""])
sketch8.MapMode = "FlatFace"
sketch8.AttachmentOffset = App.Placement(Vector(0, 0, 2.5), App.Rotation())
sketch8.addGeometry([
    Part.LineSegment(Vector(65, 43.5, 0), Vector(95.2, 43.5, 0)),
    Part.LineSegment(Vector(95.2, 43.5, 0), Vector(95.2, 42.7, 0)),
    Part.ArcOfCircle(Part.Circle(Vector(94.7, 42.7, 0), Vector(0, 0, 1), 0.5), math.radians(180), math.radians(360)),
    Part.LineSegment(Vector(94.2, 42.7, 0), Vector(66, 42.7, 0)),
    Part.ArcOfCircle(Part.Circle(Vector(65.5, 42.7, 0), Vector(0, 0, 1), 0.5), math.radians(180), math.radians(360)),
    Part.LineSegment(Vector(65, 42.7, 0), Vector(65, 43.5, 0)),
], False)
sketch8.addConstraint([
    Sketcher.Constraint("Coincident", 0, 2, 1, 1),
    Sketcher.Constraint("Tangent", 1, 2, 2, 2),
    Sketcher.Constraint("Coincident", 2, 1, 3, 1),
    Sketcher.Constraint("Coincident", 3, 2, 4, 2),
    Sketcher.Constraint("Tangent", 4, 1, 5, 1),
    Sketcher.Constraint("Coincident", 5, 2, 0, 1),
    Sketcher.Constraint("Horizontal", 0),
    Sketcher.Constraint("Vertical", 1),
    Sketcher.Constraint("Horizontal", 3),
    Sketcher.Constraint("Vertical", 5),
    Sketcher.Constraint("Equal", 2, 4),
    Sketcher.Constraint("Horizontal", 2, 3, 4, 3),
    Sketcher.Constraint("Horizontal", 1, 2, 2, 1),
    Sketcher.Constraint("Radius", 2, Q("0.5 mm")),
    Sketcher.Constraint("DistanceY", 1, 2, 1, 1, Q("0.8 mm")),
    Sketcher.Constraint("DistanceX", -1, 1, 3, 2, Q("66 mm")),
    Sketcher.Constraint("DistanceY", -1, 1, 2, 3, Q("42.7 mm")),
    Sketcher.Constraint("DistanceX", 0, 1, 0, 2, Q("30.247938 mm")),
])
sketch8.setExpression("Constraints[13]", "Params.sketch8_radius")
sketch8.setExpression("Constraints[14]", "Params.sketch8_height")
pocket7 = body.newObject("PartDesign::Pocket", "Pocket006")
pocket7.Profile = sketch8
pocket7.setExpression("Length", "Params.pocket7_length")
pocket7.Reversed = True

sketch9 = body.newObject("Sketcher::SketchObject", "Sketch008")
sketch9.AttachmentSupport = (doc.getObject("XY_Plane"), [""])
sketch9.MapMode = "FlatFace"
sketch9.AttachmentOffset = App.Placement(Vector(0, 0, 8), App.Rotation())
sketch9.addGeometry([
    Part.LineSegment(Vector(0, -3, 0), Vector(4.5, -3, 0)),
    Part.ArcOfCircle(Part.Circle(Vector(4.5, -1.5, 0), Vector(0, 0, 1), 1.5), math.radians(90), math.radians(270)),
    Part.LineSegment(Vector(4.5, 0, 0), Vector(0, 0, 0)),
    Part.ArcOfCircle(Part.Circle(Vector(0, -1.5, 0), Vector(0, 0, 1), 1.5), math.radians(-90), math.radians(90)),
    Part.LineSegment(Vector(160, 0, 0), Vector(155.5, 0, 0)),
    Part.ArcOfCircle(Part.Circle(Vector(155.5, -1.5, 0), Vector(0, 0, 1), 1.5), math.radians(-90), math.radians(90)),
    Part.LineSegment(Vector(155.5, -3, 0), Vector(160, -3, 0)),
    Part.ArcOfCircle(Part.Circle(Vector(160, -1.5, 0), Vector(0, 0, 1), 1.5), math.radians(90), math.radians(270)),
], False)
sketch9.addConstraint([
    Sketcher.Constraint("Tangent", 0, 2, 1, 2),
    Sketcher.Constraint("Tangent", 1, 1, 2, 1),
    Sketcher.Constraint("Tangent", 2, 2, 3, 2),
    Sketcher.Constraint("Tangent", 3, 1, 0, 1),
    Sketcher.Constraint("Tangent", 4, 2, 5, 2),
    Sketcher.Constraint("Tangent", 5, 1, 6, 1),
    Sketcher.Constraint("Tangent", 6, 2, 7, 2),
    Sketcher.Constraint("Tangent", 7, 1, 4, 1),
    Sketcher.Constraint("Horizontal", 0),
    Sketcher.Constraint("Horizontal", 2),
    Sketcher.Constraint("Horizontal", 4),
    Sketcher.Constraint("Horizontal", 6),
    Sketcher.Constraint("Coincident", 2, 2, -1, 1),
    Sketcher.Constraint("Equal", 3, 5),
    Sketcher.Constraint("PointOnObject", 4, 2, -1),
    Sketcher.Constraint("Equal", 2, 4),
    Sketcher.Constraint("Radius", 1, Q("1.5 mm")),
    Sketcher.Constraint("DistanceX", 0, 1, 0, 2, Q("4.5 mm")),
    Sketcher.Constraint("DistanceX", -1, 1, 7, 3, Q("160 mm")),
])
sketch9.setExpression("Constraints[16]", "Params.sketch9_radius")
sketch9.setExpression("Constraints[17]", "Params.sketch9_width")
pad2 = body.newObject("PartDesign::Pad", "Pad001")
pad2.Profile = sketch9
pad2.setExpression("Length", "Params.pad2_length")
pad2.Reversed = True
doc.recompute()

datumplane = body.newObject("PartDesign::Plane", "DatumPlane")
datumplane.AttachmentSupport = (doc.getObject("XZ_Plane"), [""])
datumplane.MapMode = "FlatFace"
datumplane.AttachmentOffset = App.Placement(Vector(0, 0, 1.5), App.Rotation())
mirrored = body.newObject("PartDesign::Mirrored", "Mirrored")
mirrored.Originals = [pad1, pocket1, pocket2, pocket3, pocket4, pocket5, pocket6, pocket7]
mirrored.MirrorPlane = (datumplane, [""])
body.Tip = mirrored

doc.recompute()
